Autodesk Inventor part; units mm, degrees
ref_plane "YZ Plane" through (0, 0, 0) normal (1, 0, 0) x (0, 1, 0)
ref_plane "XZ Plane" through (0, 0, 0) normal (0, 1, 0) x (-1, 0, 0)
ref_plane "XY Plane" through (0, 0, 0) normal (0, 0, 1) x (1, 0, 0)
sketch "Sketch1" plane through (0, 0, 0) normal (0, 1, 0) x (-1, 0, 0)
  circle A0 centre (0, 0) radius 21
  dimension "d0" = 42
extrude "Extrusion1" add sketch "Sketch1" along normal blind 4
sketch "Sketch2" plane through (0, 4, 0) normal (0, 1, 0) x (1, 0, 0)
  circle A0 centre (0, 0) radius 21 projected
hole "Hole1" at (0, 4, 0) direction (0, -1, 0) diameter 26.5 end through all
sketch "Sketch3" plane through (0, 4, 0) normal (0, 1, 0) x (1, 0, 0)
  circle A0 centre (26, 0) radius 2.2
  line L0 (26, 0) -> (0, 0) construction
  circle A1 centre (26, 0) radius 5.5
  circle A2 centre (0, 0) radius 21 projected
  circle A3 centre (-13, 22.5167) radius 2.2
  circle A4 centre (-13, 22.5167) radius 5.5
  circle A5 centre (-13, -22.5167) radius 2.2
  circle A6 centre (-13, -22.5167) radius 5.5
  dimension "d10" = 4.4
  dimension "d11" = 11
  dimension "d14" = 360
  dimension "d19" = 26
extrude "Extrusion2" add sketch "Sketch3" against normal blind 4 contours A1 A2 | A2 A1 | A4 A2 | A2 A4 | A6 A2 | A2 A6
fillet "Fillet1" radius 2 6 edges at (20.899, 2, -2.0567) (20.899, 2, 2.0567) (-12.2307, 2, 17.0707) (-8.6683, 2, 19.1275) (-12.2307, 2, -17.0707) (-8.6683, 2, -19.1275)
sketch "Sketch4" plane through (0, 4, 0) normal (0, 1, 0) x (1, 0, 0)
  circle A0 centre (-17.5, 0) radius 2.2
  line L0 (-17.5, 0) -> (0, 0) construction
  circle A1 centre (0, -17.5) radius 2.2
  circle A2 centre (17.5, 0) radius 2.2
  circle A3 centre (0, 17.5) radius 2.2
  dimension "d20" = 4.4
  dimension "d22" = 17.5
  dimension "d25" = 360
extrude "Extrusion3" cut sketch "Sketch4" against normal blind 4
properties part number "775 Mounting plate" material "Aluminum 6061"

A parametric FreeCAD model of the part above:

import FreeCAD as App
import Part
import Sketcher
from FreeCAD import Vector
Q = App.Units.Quantity


def edges_at(feature, points):
    """Names of the edges that pass closest to the given points."""
    edges = feature.Shape.Edges
    near = lambda p: min(range(len(edges)), key=lambda i: edges[i].distToShape(Part.Vertex(*p))[0])
    return sorted({f"Edge{near(p) + 1}" for p in points})

doc = App.newDocument("Part")
body = doc.addObject("PartDesign::Body", "Body")

sketch1 = body.newObject("Sketcher::SketchObject", "Sketch")
sketch1.AttachmentSupport = (doc.getObject("XZ_Plane"), [""])
sketch1.MapMode = "FlatFace"
sketch1.addGeometry(Part.Circle(Vector(0, 0, 0), Vector(0, 0, 1), 21), False)
sketch1.addConstraint([
    Sketcher.Constraint("Coincident", 0, 3, -1, 1),
    Sketcher.Constraint("Diameter", 0, Q("42 mm")),
])
pad1 = body.newObject("PartDesign::Pad", "Pad")
pad1.Profile = sketch1
pad1.Length = 4
pad1.Reversed = True

sketch2 = body.newObject("Sketcher::SketchObject", "Sketch001")
sketch2.AttachmentSupport = (doc.getObject("XZ_Plane"), [""])
sketch2.MapMode = "FlatFace"
sketch2.AttachmentOffset = App.Placement(Vector(0, 0, -4), App.Rotation())
sketch2.addGeometry(Part.Circle(Vector(0, 0, 0), Vector(0, 0, 1), 13), False)
sketch2.addConstraint([
    Sketcher.Constraint("Coincident", 0, 3, -1, 1),
    Sketcher.Constraint("Diameter", 0, Q("26.5 mm")),
])
doc.recompute()
hole = body.newObject("PartDesign::Hole", "Hole")
hole.Profile = sketch2
hole.ThreadType = "None"
hole.Diameter = 26.5
hole.DepthType = "ThroughAll"
hole.Reversed = True

sketch3 = body.newObject("Sketcher::SketchObject", "Sketch002")
sketch3.AttachmentSupport = (doc.getObject("XZ_Plane"), [""])
sketch3.MapMode = "FlatFace"
sketch3.AttachmentOffset = App.Placement(Vector(0, 0, -4), App.Rotation())
sketch3.addGeometry([
    Part.Circle(Vector(26, 0, 0), Vector(0, 0, 1), 5.5),
    Part.Circle(Vector(26, 0, 0), Vector(0, 0, 1), 2.2),
    Part.Circle(Vector(-13, -22.5, 0), Vector(0, 0, 1), 5.5),
    Part.Circle(Vector(-13, -22.5, 0), Vector(0, 0, 1), 2.2),
    Part.Circle(Vector(-13, 22.5, 0), Vector(0, 0, 1), 5.5),
    Part.Circle(Vector(-13, 22.5, 0), Vector(0, 0, 1), 2.2),
], False)
sketch3.addConstraint([
    Sketcher.Constraint("Coincident", 1, 3, 0, 3),
    Sketcher.Constraint("Coincident", 3, 3, 2, 3),
    Sketcher.Constraint("Coincident", 5, 3, 4, 3),
    Sketcher.Constraint("Equal", 0, 2),
    Sketcher.Constraint("Equal", 1, 3),
    Sketcher.Constraint("Equal", 2, 4),
    Sketcher.Constraint("Equal", 3, 5),
    Sketcher.Constraint("Symmetric", 2, 3, 4, 3, -1),
    Sketcher.Constraint("PointOnObject", 0, 3, -1),
    Sketcher.Constraint("Diameter", 0, Q("11 mm")),
    Sketcher.Constraint("Diameter", 1, Q("4.4 mm")),
    Sketcher.Constraint("DistanceX", -1, 1, 0, 3, Q("26 mm")),
    Sketcher.Constraint("DistanceX", 2, 3, -1, 1, Q("13 mm")),
    Sketcher.Constraint("DistanceY", 2, 3, -1, 1, Q("22.5167 mm")),
])
pad2 = body.newObject("PartDesign::Pad", "Pad001")
pad2.Profile = sketch3
pad2.Length = 4
doc.recompute()

fillet = body.newObject("PartDesign::Fillet", "Fillet")
fillet.Base = (pad2, edges_at(pad2, [
    (20.899, 2, -2.057),
    (20.899, 2, 2.057),
    (-12.231, 2, 17.071),
    (-8.668, 2, 19.128),
    (-12.231, 2, -17.071),
    (-8.668, 2, -19.128),
]))
fillet.Radius = 2

sketch4 = body.newObject("Sketcher::SketchObject", "Sketch003")
sketch4.AttachmentSupport = (doc.getObject("XZ_Plane"), [""])
sketch4.MapMode = "FlatFace"
sketch4.AttachmentOffset = App.Placement(Vector(0, 0, -4), App.Rotation())
sketch4.addGeometry([
    Part.Circle(Vector(-17.5, 0, 0), Vector(0, 0, 1), 2.2),
    Part.Circle(Vector(0, 17.5, 0), Vector(0, 0, 1), 2.2),
    Part.Circle(Vector(17.5, 0, 0), Vector(0, 0, 1), 2.2),
    Part.Circle(Vector(0, -17.5, 0), Vector(0, 0, 1), 2.2),
], False)
sketch4.addConstraint([
    Sketcher.Constraint("Equal", 0, 1),
    Sketcher.Constraint("Equal", 1, 2),
    Sketcher.Constraint("Equal", 2, 3),
    Sketcher.Constraint("Symmetric", 0, 3, 2, 3, -1, 1),
    Sketcher.Constraint("Symmetric", 1, 3, 3, 3, -1, 1),
    Sketcher.Constraint("PointOnObject", 0, 3, -1),
    Sketcher.Constraint("PointOnObject", 1, 3, -2),
    Sketcher.Constraint("Diameter", 0, Q("4.4 mm")),
    Sketcher.Constraint("DistanceX", 0, 3, -1, 1, Q("17.5 mm")),
    Sketcher.Constraint("DistanceY", -1, 1, 1, 3, Q("17.5 mm")),
])
pocket1 = body.newObject("PartDesign::Pocket", "Pocket")
pocket1.Profile = sketch4
pocket1.Length = 4
pocket1.Reversed = True

doc.recompute()
